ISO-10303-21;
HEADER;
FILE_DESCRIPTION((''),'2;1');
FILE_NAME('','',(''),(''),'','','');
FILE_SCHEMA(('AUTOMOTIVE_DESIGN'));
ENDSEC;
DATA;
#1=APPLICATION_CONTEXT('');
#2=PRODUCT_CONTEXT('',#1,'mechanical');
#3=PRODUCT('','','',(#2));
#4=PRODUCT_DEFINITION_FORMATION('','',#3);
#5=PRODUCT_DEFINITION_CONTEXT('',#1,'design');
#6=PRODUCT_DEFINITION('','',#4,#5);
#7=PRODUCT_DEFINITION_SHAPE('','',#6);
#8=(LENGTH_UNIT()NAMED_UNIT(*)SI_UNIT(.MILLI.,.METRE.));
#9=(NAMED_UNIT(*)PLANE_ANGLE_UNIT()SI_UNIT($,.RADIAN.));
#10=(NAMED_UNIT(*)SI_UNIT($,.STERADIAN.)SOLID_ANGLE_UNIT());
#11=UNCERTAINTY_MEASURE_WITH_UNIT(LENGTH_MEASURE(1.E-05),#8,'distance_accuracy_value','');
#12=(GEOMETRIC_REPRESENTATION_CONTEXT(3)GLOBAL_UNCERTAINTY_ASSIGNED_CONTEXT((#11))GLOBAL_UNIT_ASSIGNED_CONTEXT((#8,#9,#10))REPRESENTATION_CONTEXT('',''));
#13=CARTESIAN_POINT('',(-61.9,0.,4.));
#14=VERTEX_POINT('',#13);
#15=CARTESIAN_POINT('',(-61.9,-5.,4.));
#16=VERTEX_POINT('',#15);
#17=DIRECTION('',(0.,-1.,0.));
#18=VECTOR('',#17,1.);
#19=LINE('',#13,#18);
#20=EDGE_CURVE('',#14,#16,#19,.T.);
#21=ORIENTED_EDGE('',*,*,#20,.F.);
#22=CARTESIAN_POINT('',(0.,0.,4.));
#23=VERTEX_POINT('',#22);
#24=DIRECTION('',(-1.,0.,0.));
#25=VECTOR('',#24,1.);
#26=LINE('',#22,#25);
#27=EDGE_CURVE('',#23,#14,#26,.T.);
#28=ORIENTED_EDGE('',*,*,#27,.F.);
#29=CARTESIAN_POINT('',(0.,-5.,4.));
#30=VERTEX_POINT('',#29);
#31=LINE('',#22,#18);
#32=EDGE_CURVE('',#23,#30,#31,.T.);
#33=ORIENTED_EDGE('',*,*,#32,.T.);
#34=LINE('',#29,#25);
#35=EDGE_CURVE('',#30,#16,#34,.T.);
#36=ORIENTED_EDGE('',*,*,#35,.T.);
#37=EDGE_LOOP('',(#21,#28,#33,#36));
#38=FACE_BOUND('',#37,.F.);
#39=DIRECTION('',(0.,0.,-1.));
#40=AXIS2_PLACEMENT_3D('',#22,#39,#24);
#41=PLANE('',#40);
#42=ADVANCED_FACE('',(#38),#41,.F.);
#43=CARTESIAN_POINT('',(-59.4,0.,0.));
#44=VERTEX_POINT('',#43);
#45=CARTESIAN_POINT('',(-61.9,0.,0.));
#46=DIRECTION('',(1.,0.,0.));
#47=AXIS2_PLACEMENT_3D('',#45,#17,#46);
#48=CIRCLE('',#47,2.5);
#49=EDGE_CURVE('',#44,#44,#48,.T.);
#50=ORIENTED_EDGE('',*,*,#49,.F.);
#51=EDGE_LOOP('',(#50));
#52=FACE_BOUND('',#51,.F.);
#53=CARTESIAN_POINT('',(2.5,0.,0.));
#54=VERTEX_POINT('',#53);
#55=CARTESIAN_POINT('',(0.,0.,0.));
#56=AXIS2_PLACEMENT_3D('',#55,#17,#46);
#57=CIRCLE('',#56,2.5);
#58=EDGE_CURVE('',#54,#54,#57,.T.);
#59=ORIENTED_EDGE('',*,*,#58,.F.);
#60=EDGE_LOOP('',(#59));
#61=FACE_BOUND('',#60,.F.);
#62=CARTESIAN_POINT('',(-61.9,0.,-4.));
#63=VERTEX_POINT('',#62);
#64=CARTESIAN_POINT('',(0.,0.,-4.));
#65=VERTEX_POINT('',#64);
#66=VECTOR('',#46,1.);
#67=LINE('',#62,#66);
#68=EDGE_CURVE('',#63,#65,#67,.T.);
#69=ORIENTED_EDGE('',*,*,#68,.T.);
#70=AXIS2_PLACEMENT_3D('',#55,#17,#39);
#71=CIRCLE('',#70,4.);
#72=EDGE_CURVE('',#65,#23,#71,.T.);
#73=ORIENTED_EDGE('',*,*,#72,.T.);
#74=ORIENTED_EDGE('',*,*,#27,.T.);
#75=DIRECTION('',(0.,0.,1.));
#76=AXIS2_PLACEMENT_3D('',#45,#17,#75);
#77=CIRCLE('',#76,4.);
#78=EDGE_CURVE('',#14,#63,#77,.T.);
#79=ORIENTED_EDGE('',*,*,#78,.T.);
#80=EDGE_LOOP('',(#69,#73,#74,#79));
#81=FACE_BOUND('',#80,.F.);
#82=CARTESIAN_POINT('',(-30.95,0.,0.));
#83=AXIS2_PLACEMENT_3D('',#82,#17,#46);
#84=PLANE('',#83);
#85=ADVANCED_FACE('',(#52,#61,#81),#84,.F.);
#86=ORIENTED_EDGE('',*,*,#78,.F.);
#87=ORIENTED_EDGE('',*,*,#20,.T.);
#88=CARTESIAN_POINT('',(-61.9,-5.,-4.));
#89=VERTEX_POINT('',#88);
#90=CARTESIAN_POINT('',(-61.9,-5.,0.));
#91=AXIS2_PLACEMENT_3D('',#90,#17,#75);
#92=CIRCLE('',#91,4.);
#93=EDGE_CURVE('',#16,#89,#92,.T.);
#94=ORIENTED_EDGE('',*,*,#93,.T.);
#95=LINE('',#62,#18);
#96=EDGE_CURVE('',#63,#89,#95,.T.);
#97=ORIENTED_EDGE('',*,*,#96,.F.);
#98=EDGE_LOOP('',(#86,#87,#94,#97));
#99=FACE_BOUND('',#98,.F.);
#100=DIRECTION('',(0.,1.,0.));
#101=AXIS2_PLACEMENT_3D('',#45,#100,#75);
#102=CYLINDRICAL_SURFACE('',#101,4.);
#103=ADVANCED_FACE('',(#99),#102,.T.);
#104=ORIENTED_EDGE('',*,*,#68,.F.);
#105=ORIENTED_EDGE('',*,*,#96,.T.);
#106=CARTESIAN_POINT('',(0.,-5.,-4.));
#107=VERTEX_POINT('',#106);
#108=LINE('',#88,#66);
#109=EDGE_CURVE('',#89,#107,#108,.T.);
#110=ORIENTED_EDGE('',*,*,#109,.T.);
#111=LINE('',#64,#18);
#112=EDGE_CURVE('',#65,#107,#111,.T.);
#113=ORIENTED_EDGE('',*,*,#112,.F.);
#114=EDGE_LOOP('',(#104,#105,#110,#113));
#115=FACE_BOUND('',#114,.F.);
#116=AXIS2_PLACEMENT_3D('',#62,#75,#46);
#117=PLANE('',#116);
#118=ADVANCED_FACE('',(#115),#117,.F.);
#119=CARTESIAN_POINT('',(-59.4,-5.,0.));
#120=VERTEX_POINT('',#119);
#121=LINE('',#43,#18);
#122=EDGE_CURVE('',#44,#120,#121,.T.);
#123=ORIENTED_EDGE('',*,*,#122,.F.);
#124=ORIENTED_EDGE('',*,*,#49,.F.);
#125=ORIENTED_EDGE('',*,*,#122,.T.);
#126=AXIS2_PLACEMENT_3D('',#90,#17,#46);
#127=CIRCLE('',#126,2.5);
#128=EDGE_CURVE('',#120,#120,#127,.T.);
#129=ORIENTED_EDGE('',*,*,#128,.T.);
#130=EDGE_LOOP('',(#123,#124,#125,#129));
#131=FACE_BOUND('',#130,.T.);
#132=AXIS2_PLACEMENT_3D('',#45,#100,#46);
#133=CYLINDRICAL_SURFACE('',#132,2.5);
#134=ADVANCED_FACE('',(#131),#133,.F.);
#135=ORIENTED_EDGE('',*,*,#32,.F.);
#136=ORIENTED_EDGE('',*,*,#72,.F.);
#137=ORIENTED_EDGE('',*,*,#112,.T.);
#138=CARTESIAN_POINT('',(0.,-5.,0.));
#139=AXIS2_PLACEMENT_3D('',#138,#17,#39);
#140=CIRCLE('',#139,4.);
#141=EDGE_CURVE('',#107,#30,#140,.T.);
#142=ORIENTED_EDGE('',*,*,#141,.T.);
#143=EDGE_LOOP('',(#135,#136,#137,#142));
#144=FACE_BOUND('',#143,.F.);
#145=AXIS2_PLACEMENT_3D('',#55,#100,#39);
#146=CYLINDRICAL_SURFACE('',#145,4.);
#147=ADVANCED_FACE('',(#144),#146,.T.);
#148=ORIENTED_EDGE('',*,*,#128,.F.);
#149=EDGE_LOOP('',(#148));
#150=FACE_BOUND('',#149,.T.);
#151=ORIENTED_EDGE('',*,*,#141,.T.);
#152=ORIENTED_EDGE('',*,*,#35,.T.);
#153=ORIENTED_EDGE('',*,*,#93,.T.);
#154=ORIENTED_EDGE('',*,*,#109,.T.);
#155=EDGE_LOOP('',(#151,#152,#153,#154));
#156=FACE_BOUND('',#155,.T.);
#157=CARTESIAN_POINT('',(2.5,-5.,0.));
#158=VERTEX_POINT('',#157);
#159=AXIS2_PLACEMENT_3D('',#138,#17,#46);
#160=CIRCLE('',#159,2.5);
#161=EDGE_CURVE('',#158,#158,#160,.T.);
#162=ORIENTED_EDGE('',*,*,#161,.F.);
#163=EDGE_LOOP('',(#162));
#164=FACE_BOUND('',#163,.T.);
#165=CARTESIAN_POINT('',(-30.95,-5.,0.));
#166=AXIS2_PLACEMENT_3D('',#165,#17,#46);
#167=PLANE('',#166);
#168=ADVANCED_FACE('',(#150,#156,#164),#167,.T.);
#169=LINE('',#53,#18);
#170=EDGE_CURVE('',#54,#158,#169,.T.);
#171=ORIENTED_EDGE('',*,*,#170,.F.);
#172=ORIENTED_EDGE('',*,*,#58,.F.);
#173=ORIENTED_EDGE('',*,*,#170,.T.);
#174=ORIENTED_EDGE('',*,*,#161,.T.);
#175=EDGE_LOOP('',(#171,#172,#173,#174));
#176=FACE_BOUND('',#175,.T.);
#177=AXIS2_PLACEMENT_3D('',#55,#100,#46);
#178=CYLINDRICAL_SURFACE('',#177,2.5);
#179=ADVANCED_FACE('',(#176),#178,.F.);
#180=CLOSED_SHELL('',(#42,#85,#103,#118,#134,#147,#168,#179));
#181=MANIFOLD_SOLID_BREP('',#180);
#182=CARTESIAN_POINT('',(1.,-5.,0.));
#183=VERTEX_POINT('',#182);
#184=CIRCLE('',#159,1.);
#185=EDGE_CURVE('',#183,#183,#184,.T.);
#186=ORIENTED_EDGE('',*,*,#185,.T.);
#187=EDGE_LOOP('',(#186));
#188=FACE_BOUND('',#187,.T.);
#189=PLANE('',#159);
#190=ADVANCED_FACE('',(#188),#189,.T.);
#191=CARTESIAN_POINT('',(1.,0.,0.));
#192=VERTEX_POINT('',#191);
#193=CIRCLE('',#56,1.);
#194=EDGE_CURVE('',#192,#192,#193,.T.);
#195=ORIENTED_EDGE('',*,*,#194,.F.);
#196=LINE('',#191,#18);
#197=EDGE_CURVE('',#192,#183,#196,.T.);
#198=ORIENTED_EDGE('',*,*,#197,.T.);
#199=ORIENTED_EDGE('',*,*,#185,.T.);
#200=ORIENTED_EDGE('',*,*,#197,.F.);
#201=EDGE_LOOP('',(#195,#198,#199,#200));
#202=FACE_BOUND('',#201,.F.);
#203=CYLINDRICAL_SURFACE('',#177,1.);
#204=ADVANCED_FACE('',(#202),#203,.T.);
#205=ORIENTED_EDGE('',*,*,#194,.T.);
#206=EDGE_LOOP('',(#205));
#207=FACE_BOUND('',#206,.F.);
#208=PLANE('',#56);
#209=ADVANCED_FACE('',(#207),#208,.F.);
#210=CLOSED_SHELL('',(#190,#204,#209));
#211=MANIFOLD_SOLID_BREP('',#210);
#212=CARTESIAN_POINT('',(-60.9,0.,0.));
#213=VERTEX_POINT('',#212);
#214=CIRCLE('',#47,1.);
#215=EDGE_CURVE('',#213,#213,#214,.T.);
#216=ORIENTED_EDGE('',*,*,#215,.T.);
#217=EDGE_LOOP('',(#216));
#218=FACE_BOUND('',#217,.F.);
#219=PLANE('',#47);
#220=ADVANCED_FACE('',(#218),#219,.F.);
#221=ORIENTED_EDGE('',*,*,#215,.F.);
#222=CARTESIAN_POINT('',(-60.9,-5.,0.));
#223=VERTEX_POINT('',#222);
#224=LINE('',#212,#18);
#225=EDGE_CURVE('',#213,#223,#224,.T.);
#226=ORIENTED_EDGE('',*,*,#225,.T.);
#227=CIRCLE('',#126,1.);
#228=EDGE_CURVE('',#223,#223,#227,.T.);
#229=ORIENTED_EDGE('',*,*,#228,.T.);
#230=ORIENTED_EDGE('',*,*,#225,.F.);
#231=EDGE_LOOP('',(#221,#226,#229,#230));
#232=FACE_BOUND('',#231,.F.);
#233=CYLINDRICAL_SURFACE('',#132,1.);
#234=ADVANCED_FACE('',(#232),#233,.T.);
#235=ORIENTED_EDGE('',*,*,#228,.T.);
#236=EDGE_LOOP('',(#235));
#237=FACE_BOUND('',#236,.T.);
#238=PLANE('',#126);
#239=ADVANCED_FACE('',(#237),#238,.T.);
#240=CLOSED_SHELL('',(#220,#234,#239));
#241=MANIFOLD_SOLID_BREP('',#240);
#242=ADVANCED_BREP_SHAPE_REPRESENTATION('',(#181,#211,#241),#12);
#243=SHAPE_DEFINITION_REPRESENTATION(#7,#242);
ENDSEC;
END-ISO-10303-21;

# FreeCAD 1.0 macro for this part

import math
import FreeCAD as App
import Part
import Sketcher
from FreeCAD import Vector
Q = App.Units.Quantity

doc = App.newDocument("Part")
params = doc.addObject("Spreadsheet::Sheet", "Params")
for row, (alias, value) in enumerate([
    ("sketch1_diameter", "5 mm"),
    ("sketch1_diameter2", "2 mm"),
    ("sketch1_radius", "4 mm"),
    ("sketch1_width", "61.9 mm"),
    ("pad1_length", "5 mm"),
], start=1):
    params.set(f"A{row}", alias)
    params.set(f"B{row}", "=" + value)
    params.setAlias(f"B{row}", alias)

body = doc.addObject("PartDesign::Body", "Body")
body.AllowCompound = True

sketch1 = body.newObject("Sketcher::SketchObject", "Sketch")
sketch1.AttachmentSupport = (doc.getObject("XZ_Plane"), [""])
sketch1.MapMode = "FlatFace"
sketch1.addGeometry([
    Part.LineSegment(Vector(-61.9, -4, 0), Vector(0, -4, 0)),
    Part.ArcOfCircle(Part.Circle(Vector(0, 0, 0), Vector(0, 0, 1), 4), math.radians(-90), math.radians(90)),
    Part.LineSegment(Vector(0, 4, 0), Vector(-61.9, 4, 0)),
    Part.ArcOfCircle(Part.Circle(Vector(-61.9, 0, 0), Vector(0, 0, 1), 4), math.radians(90), math.radians(270)),
    Part.Circle(Vector(-61.9, 0, 0), Vector(0, 0, 1), 2.5),
    Part.Circle(Vector(0, 0, 0), Vector(0, 0, 1), 2.5),
    Part.Circle(Vector(-61.9, 0, 0), Vector(0, 0, 1), 1),
    Part.Circle(Vector(0, 0, 0), Vector(0, 0, 1), 1),
], False)
sketch1.addConstraint([
    Sketcher.Constraint("Tangent", 0, 2, 1, 1),
    Sketcher.Constraint("Tangent", 1, 2, 2, 1),
    Sketcher.Constraint("Tangent", 2, 2, 3, 1),
    Sketcher.Constraint("Tangent", 3, 2, 0, 1),
    Sketcher.Constraint("Horizontal", 0),
    Sketcher.Constraint("Horizontal", 2),
    Sketcher.Constraint("Coincident", 1, 3, -1, 1),
    Sketcher.Constraint("Coincident", 5, 3, -1, 1),
    Sketcher.Constraint("Coincident", 7, 3, -1, 1),
    Sketcher.Constraint("Coincident", 4, 3, 3, 3),
    Sketcher.Constraint("Coincident", 6, 3, 3, 3),
    Sketcher.Constraint("Equal", 4, 5),
    Sketcher.Constraint("Equal", 6, 7),
    Sketcher.Constraint("Diameter", 4, Q("5 mm")),
    Sketcher.Constraint("Diameter", 6, Q("2 mm")),
    Sketcher.Constraint("Radius", 1, Q("4 mm")),
    Sketcher.Constraint("DistanceX", 0, 1, 0, 2, Q("61.9 mm")),
])
sketch1.setExpression("Constraints[13]", "Params.sketch1_diameter")
sketch1.setExpression("Constraints[14]", "Params.sketch1_diameter2")
sketch1.setExpression("Constraints[15]", "Params.sketch1_radius")
sketch1.setExpression("Constraints[16]", "Params.sketch1_width")
pad1 = body.newObject("PartDesign::Pad", "Pad")
pad1.Profile = sketch1
pad1.setExpression("Length", "Params.pad1_length")

doc.recompute()
